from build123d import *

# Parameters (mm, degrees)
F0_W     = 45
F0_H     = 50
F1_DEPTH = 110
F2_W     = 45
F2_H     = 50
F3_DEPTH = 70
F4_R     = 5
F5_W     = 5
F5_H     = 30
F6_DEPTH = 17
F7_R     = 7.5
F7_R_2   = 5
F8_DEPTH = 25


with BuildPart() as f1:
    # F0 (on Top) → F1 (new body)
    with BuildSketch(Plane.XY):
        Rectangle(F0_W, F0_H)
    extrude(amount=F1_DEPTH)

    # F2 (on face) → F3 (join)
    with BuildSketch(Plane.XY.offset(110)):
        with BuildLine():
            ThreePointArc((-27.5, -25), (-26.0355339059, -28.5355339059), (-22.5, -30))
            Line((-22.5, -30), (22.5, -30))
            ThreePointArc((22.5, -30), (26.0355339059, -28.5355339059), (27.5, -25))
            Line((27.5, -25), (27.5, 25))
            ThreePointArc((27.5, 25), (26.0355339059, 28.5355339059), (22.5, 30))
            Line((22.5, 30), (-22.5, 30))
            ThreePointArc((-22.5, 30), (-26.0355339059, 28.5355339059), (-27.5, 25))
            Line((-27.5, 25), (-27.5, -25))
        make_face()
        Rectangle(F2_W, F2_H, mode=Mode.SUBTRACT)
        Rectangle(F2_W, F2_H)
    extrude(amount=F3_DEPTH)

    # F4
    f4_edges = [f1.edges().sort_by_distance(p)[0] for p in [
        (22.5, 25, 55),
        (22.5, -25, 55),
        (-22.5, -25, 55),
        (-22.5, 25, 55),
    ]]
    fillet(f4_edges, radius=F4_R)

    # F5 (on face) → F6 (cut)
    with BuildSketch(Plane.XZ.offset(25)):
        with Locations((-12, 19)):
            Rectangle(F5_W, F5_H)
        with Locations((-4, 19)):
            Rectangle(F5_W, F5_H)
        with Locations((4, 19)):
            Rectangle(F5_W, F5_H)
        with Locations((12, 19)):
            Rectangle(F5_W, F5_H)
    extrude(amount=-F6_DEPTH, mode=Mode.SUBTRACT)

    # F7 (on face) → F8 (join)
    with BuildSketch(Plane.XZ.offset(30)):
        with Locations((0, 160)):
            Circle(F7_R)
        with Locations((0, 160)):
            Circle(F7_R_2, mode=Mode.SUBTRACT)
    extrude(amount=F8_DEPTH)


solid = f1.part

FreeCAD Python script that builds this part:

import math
import FreeCAD as App
import Part
import Sketcher

V = App.Vector


def edges_at(feature, points):
    """Names of the edges that pass closest to the given points."""
    edges = feature.Shape.Edges
    near = lambda p: min(range(len(edges)), key=lambda i: edges[i].distToShape(Part.Vertex(*p))[0])
    return sorted({f"Edge{near(p) + 1}" for p in points})


def add_polygon(sketch, points):
    """Adds a closed chain of lines whose ends are joined by coincident constraints."""
    first, n = sketch.GeometryCount, len(points)
    for a, b in zip(points, points[1:] + points[:1]):
        sketch.addGeometry(Part.LineSegment(App.Vector(*a, 0), App.Vector(*b, 0)), False)
    for i in range(n):
        sketch.addConstraint(Sketcher.Constraint("Coincident", first + i, 2, first + (i + 1) % n, 1))

doc = App.newDocument("Part")
body = doc.addObject("PartDesign::Body", "Body")

sketch1 = doc.addObject("Sketcher::SketchObject", "Sketch")
body.addObject(sketch1)
sketch1.AttachmentSupport = (doc.XY_Plane, [""])
sketch1.MapMode = "FlatFace"
add_polygon(sketch1, [(-22, 25), (-22, -25), (22, -25), (22, 25)])
sketch1.addConstraint(Sketcher.Constraint("Vertical", 0))
sketch1.addConstraint(Sketcher.Constraint("Horizontal", 1))
sketch1.addConstraint(Sketcher.Constraint("Vertical", 2))
sketch1.addConstraint(Sketcher.Constraint("Horizontal", 3))
sketch1.addConstraint(Sketcher.Constraint("Symmetric", 0, 2, 2, 2, -1, 1))
sketch1.addConstraint(Sketcher.Constraint("DistanceX", 1, 1, 1, 2, 45.0))
sketch1.addConstraint(Sketcher.Constraint("DistanceY", 0, 2, 0, 1, 50.0))
pad1 = doc.addObject("PartDesign::Pad", "Pad")
body.addObject(pad1)
pad1.Profile = sketch1
pad1.Length = 110

sketch2 = doc.addObject("Sketcher::SketchObject", "Sketch001")
body.addObject(sketch2)
sketch2.AttachmentSupport = (doc.XY_Plane, [""])
sketch2.MapMode = "FlatFace"
sketch2.AttachmentOffset = App.Placement(V(0, 0, 110), App.Rotation())
sketch2.addGeometry(Part.ArcOfCircle(Part.Circle(V(-22, -25, 0), V(0, 0, 1), 5), math.radians(180), math.radians(270)), False)
sketch2.addGeometry(Part.LineSegment(V(-22, -30, 0), V(22, -30, 0)), False)
sketch2.addGeometry(Part.ArcOfCircle(Part.Circle(V(22, -25, 0), V(0, 0, 1), 5), math.radians(-90), math.radians(0)), False)
sketch2.addGeometry(Part.LineSegment(V(28, -25, 0), V(28, 25, 0)), False)
sketch2.addGeometry(Part.ArcOfCircle(Part.Circle(V(22, 25, 0), V(0, 0, 1), 5), math.radians(0), math.radians(90)), False)
sketch2.addGeometry(Part.LineSegment(V(22, 30, 0), V(-22, 30, 0)), False)
sketch2.addGeometry(Part.ArcOfCircle(Part.Circle(V(-22, 25, 0), V(0, 0, 1), 5), math.radians(90), math.radians(180)), False)
sketch2.addGeometry(Part.LineSegment(V(-28, 25, 0), V(-28, -25, 0)), False)
sketch2.addConstraint(Sketcher.Constraint("Tangent", 0, 2, 1, 1))
sketch2.addConstraint(Sketcher.Constraint("Tangent", 1, 2, 2, 1))
sketch2.addConstraint(Sketcher.Constraint("Tangent", 2, 2, 3, 1))
sketch2.addConstraint(Sketcher.Constraint("Tangent", 3, 2, 4, 1))
sketch2.addConstraint(Sketcher.Constraint("Tangent", 4, 2, 5, 1))
sketch2.addConstraint(Sketcher.Constraint("Tangent", 5, 2, 6, 1))
sketch2.addConstraint(Sketcher.Constraint("Tangent", 6, 2, 7, 1))
sketch2.addConstraint(Sketcher.Constraint("Tangent", 7, 2, 0, 1))
sketch2.addConstraint(Sketcher.Constraint("Horizontal", 1))
sketch2.addConstraint(Sketcher.Constraint("Vertical", 3))
sketch2.addConstraint(Sketcher.Constraint("Horizontal", 5))
sketch2.addConstraint(Sketcher.Constraint("Vertical", 7))
sketch2.addConstraint(Sketcher.Constraint("Equal", 0, 2))
sketch2.addConstraint(Sketcher.Constraint("Equal", 2, 4))
sketch2.addConstraint(Sketcher.Constraint("Equal", 4, 6))
sketch2.addConstraint(Sketcher.Constraint("Symmetric", 0, 3, 4, 3, -1, 1))
sketch2.addConstraint(Sketcher.Constraint("Radius", 0, 5.0))
sketch2.addConstraint(Sketcher.Constraint("DistanceX", 1, 1, 1, 2, 45.0))
sketch2.addConstraint(Sketcher.Constraint("DistanceY", 3, 1, 3, 2, 50.0))
pad2 = doc.addObject("PartDesign::Pad", "Pad001")
body.addObject(pad2)
pad2.Profile = sketch2
pad2.Length = 70
doc.recompute()

fillet = doc.addObject("PartDesign::Fillet", "Fillet")
body.addObject(fillet)
fillet.Base = (pad2, edges_at(pad2, [
    (22.5, 25, 55),
    (22.5, -25, 55),
    (-22.5, -25, 55),
    (-22.5, 25, 55),
]))
fillet.Radius = 5

sketch3 = doc.addObject("Sketcher::SketchObject", "Sketch002")
body.addObject(sketch3)
sketch3.AttachmentSupport = (doc.XZ_Plane, [""])
sketch3.MapMode = "FlatFace"
sketch3.AttachmentOffset = App.Placement(V(0, 0, 25), App.Rotation())
add_polygon(sketch3, [(-14, 34), (-14, 4), (-10, 4), (-10, 34)])
add_polygon(sketch3, [(-6, 34), (-6, 4), (-2, 4), (-2, 34)])
add_polygon(sketch3, [(2, 34), (2, 4), (6, 4), (6, 34)])
add_polygon(sketch3, [(10, 34), (10, 4), (14, 4), (14, 34)])
sketch3.addConstraint(Sketcher.Constraint("Vertical", 0))
sketch3.addConstraint(Sketcher.Constraint("Horizontal", 1))
sketch3.addConstraint(Sketcher.Constraint("Vertical", 2))
sketch3.addConstraint(Sketcher.Constraint("Horizontal", 3))
sketch3.addConstraint(Sketcher.Constraint("Vertical", 4))
sketch3.addConstraint(Sketcher.Constraint("Horizontal", 5))
sketch3.addConstraint(Sketcher.Constraint("Vertical", 6))
sketch3.addConstraint(Sketcher.Constraint("Horizontal", 7))
sketch3.addConstraint(Sketcher.Constraint("Vertical", 8))
sketch3.addConstraint(Sketcher.Constraint("Horizontal", 9))
sketch3.addConstraint(Sketcher.Constraint("Vertical", 10))
sketch3.addConstraint(Sketcher.Constraint("Horizontal", 11))
sketch3.addConstraint(Sketcher.Constraint("Vertical", 12))
sketch3.addConstraint(Sketcher.Constraint("Horizontal", 13))
sketch3.addConstraint(Sketcher.Constraint("Vertical", 14))
sketch3.addConstraint(Sketcher.Constraint("Horizontal", 15))
sketch3.addConstraint(Sketcher.Constraint("Symmetric", 5, 2, 8, 2, -2))
sketch3.addConstraint(Sketcher.Constraint("Symmetric", 7, 2, 10, 2, -2))
sketch3.addConstraint(Sketcher.Constraint("Symmetric", 1, 2, 12, 2, -2))
sketch3.addConstraint(Sketcher.Constraint("Symmetric", 3, 2, 14, 2, -2))
sketch3.addConstraint(Sketcher.Constraint("Horizontal", 1, 2, 4, 2))
sketch3.addConstraint(Sketcher.Constraint("Horizontal", 3, 2, 6, 2))
sketch3.addConstraint(Sketcher.Constraint("Equal", 3, 5))
sketch3.addConstraint(Sketcher.Constraint("DistanceX", 1, 1, 1, 2, 5.0))
sketch3.addConstraint(Sketcher.Constraint("DistanceY", 0, 2, 0, 1, 30.0))
sketch3.addConstraint(Sketcher.Constraint("DistanceY", -1, 1, 0, 2, 4.0))
sketch3.addConstraint(Sketcher.Constraint("DistanceX", 1, 2, 4, 2, 3.0))
sketch3.addConstraint(Sketcher.Constraint("DistanceX", 5, 2, 8, 2, 3.0))
pocket1 = doc.addObject("PartDesign::Pocket", "Pocket")
body.addObject(pocket1)
pocket1.Profile = sketch3
pocket1.Length = 17

sketch4 = doc.addObject("Sketcher::SketchObject", "Sketch003")
body.addObject(sketch4)
sketch4.AttachmentSupport = (doc.XZ_Plane, [""])
sketch4.MapMode = "FlatFace"
sketch4.AttachmentOffset = App.Placement(V(0, 0, 30), App.Rotation())
sketch4.addGeometry(Part.Circle(V(0, 160, 0), V(0, 0, 1), 8), False)
sketch4.addGeometry(Part.Circle(V(0, 160, 0), V(0, 0, 1), 5), False)
sketch4.addConstraint(Sketcher.Constraint("Coincident", 1, 3, 0, 3))
sketch4.addConstraint(Sketcher.Constraint("PointOnObject", 0, 3, -2))
sketch4.addConstraint(Sketcher.Constraint("Diameter", 0, 15.0))
sketch4.addConstraint(Sketcher.Constraint("Diameter", 1, 10.0))
sketch4.addConstraint(Sketcher.Constraint("DistanceY", -1, 1, 0, 3, 160.0))
pad3 = doc.addObject("PartDesign::Pad", "Pad002")
body.addObject(pad3)
pad3.Profile = sketch4
pad3.Length = 25

doc.recompute()
